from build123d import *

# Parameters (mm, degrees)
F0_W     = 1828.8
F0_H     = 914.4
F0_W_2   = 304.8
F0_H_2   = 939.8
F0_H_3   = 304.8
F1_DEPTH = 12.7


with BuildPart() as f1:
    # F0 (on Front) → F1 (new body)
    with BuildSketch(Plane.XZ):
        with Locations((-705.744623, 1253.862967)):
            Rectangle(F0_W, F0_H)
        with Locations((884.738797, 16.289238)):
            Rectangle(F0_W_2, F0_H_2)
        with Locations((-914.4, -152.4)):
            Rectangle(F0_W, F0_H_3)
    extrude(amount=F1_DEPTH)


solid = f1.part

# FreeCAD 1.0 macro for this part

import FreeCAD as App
import Part
import Sketcher
from FreeCAD import Vector
Q = App.Units.Quantity

doc = App.newDocument("Part")
body = doc.addObject("PartDesign::Body", "Body")
body.AllowCompound = True

sketch1 = body.newObject("Sketcher::SketchObject", "Sketch")
sketch1.AttachmentSupport = (doc.getObject("XZ_Plane"), [""])
sketch1.MapMode = "FlatFace"
sketch1.addGeometry(Part.LineSegment(Vector(-1620, 1711, 0), Vector(-1620, 797, 0)), False)
sketch1.addGeometry(Part.LineSegment(Vector(-1620, 797, 0), Vector(209, 797, 0)), False)
sketch1.addGeometry(Part.LineSegment(Vector(209, 797, 0), Vector(209, 1711, 0)), False)
sketch1.addGeometry(Part.LineSegment(Vector(209, 1711, 0), Vector(-1620, 1711, 0)), False)
sketch1.addGeometry(Part.LineSegment(Vector(732, 486, 0), Vector(732, -454, 0)), False)
sketch1.addGeometry(Part.LineSegment(Vector(732, -454, 0), Vector(1037, -454, 0)), False)
sketch1.addGeometry(Part.LineSegment(Vector(1037, -454, 0), Vector(1037, 486, 0)), False)
sketch1.addGeometry(Part.LineSegment(Vector(1037, 486, 0), Vector(732, 486, 0)), False)
sketch1.addGeometry(Part.LineSegment(Vector(-1829, 0, 0), Vector(-1829, -305, 0)), False)
sketch1.addGeometry(Part.LineSegment(Vector(-1829, -305, 0), Vector(0, -305, 0)), False)
sketch1.addGeometry(Part.LineSegment(Vector(0, -305, 0), Vector(0, 0, 0)), False)
sketch1.addGeometry(Part.LineSegment(Vector(0, 0, 0), Vector(-1829, 0, 0)), False)
sketch1.addConstraint(Sketcher.Constraint("Coincident", 0, 2, 1, 1))
sketch1.addConstraint(Sketcher.Constraint("Coincident", 1, 2, 2, 1))
sketch1.addConstraint(Sketcher.Constraint("Coincident", 2, 2, 3, 1))
sketch1.addConstraint(Sketcher.Constraint("Coincident", 3, 2, 0, 1))
sketch1.addConstraint(Sketcher.Constraint("Coincident", 4, 2, 5, 1))
sketch1.addConstraint(Sketcher.Constraint("Coincident", 5, 2, 6, 1))
sketch1.addConstraint(Sketcher.Constraint("Coincident", 6, 2, 7, 1))
sketch1.addConstraint(Sketcher.Constraint("Coincident", 7, 2, 4, 1))
sketch1.addConstraint(Sketcher.Constraint("Coincident", 8, 2, 9, 1))
sketch1.addConstraint(Sketcher.Constraint("Coincident", 9, 2, 10, 1))
sketch1.addConstraint(Sketcher.Constraint("Coincident", 10, 2, 11, 1))
sketch1.addConstraint(Sketcher.Constraint("Coincident", 11, 2, 8, 1))
sketch1.addConstraint(Sketcher.Constraint("Vertical", 0))
sketch1.addConstraint(Sketcher.Constraint("Horizontal", 1))
sketch1.addConstraint(Sketcher.Constraint("Vertical", 2))
sketch1.addConstraint(Sketcher.Constraint("Horizontal", 3))
sketch1.addConstraint(Sketcher.Constraint("Vertical", 4))
sketch1.addConstraint(Sketcher.Constraint("Horizontal", 5))
sketch1.addConstraint(Sketcher.Constraint("Vertical", 6))
sketch1.addConstraint(Sketcher.Constraint("Horizontal", 7))
sketch1.addConstraint(Sketcher.Constraint("Vertical", 8))
sketch1.addConstraint(Sketcher.Constraint("Horizontal", 9))
sketch1.addConstraint(Sketcher.Constraint("Vertical", 10))
sketch1.addConstraint(Sketcher.Constraint("Horizontal", 11))
sketch1.addConstraint(Sketcher.Constraint("Coincident", 10, 2, -1, 1))
sketch1.addConstraint(Sketcher.Constraint("Equal", 3, 9))
sketch1.addConstraint(Sketcher.Constraint("Equal", 7, 8))
sketch1.addConstraint(Sketcher.Constraint("DistanceX", 1, 1, 1, 2, Q("72 in")))
sketch1.addConstraint(Sketcher.Constraint("DistanceX", 5, 1, 5, 2, Q("12 in")))
sketch1.addConstraint(Sketcher.Constraint("DistanceY", 0, 2, 0, 1, Q("36 in")))
sketch1.addConstraint(Sketcher.Constraint("DistanceY", 4, 2, 4, 1, Q("37 in")))
sketch1.addConstraint(Sketcher.Constraint("DistanceY", 4, 2, -1, 1, 453.610762))
sketch1.addConstraint(Sketcher.Constraint("DistanceX", 1, 2, 4, 2, 523.68342))
sketch1.addConstraint(Sketcher.Constraint("DistanceY", 4, 2, 1, 2, 1250.273729))
sketch1.addConstraint(Sketcher.Constraint("DistanceX", 0, 2, -1, 1, 1620.144623))
pad1 = body.newObject("PartDesign::Pad", "Pad")
pad1.Profile = sketch1
pad1.Length = Q("0.5 in")

doc.recompute()
